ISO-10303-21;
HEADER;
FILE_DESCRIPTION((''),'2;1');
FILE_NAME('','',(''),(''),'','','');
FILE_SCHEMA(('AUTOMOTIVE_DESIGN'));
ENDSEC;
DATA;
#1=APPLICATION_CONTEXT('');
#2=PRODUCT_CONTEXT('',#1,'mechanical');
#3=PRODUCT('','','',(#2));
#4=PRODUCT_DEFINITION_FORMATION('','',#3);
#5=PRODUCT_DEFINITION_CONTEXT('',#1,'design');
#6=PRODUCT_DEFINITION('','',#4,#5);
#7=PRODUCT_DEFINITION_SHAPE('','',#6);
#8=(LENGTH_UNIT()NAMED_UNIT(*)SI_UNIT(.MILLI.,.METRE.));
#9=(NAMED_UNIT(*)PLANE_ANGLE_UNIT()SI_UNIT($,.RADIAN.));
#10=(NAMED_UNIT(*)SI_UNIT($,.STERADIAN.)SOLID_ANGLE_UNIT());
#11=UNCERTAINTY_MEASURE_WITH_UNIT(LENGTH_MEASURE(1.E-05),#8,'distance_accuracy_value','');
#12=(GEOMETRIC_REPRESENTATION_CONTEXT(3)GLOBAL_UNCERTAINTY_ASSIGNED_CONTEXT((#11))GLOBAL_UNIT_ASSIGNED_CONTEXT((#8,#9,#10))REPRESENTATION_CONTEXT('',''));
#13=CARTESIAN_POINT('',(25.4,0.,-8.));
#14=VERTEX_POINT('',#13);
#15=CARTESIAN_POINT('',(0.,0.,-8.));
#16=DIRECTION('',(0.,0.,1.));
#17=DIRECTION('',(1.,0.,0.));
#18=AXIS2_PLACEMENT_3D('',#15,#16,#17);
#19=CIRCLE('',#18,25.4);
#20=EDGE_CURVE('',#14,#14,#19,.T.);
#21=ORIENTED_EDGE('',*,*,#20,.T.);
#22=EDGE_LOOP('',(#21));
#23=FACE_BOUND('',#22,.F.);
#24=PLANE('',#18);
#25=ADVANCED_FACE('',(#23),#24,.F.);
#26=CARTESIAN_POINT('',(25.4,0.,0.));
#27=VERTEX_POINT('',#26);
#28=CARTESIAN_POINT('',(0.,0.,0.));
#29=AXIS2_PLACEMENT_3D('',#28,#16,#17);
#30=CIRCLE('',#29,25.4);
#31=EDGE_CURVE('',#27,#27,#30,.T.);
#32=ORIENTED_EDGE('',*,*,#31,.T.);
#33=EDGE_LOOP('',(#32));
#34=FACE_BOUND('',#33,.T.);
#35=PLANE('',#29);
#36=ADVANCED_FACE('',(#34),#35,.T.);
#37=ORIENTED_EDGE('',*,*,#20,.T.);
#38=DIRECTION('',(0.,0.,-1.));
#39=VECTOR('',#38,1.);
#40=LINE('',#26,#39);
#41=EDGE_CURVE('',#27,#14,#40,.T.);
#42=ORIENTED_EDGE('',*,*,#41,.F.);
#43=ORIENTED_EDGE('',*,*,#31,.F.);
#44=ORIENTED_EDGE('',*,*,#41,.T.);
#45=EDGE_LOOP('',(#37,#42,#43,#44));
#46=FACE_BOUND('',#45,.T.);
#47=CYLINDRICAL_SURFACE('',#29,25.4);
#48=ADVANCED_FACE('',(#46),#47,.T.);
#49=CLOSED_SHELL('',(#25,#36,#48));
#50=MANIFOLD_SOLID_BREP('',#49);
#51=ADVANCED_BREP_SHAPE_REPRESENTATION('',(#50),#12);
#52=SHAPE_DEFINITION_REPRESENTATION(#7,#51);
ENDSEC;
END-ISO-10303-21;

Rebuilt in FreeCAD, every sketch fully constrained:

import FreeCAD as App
import Part
import Sketcher

doc = App.newDocument("Part")
body = doc.addObject("PartDesign::Body", "Body")

# Sketch on XY plane
sketch1 = doc.addObject("Sketcher::SketchObject", "Sketch")
body.addObject(sketch1)
sketch1.AttachmentSupport = (doc.XY_Plane, [""])
sketch1.MapMode = "FlatFace"
sketch1.addGeometry(Part.Circle(App.Vector(0, 0, 0), App.Vector(0, 0, 1), 25.4), False)
sketch1.addConstraint(Sketcher.Constraint("Coincident", 0, 3, -1, 1))
sketch1.addConstraint(Sketcher.Constraint("Diameter", 0, 50.8))
pad1 = doc.addObject("PartDesign::Pad", "Pad")
body.addObject(pad1)
pad1.Profile = sketch1
pad1.Length = 8
pad1.Reversed = True

doc.recompute()
